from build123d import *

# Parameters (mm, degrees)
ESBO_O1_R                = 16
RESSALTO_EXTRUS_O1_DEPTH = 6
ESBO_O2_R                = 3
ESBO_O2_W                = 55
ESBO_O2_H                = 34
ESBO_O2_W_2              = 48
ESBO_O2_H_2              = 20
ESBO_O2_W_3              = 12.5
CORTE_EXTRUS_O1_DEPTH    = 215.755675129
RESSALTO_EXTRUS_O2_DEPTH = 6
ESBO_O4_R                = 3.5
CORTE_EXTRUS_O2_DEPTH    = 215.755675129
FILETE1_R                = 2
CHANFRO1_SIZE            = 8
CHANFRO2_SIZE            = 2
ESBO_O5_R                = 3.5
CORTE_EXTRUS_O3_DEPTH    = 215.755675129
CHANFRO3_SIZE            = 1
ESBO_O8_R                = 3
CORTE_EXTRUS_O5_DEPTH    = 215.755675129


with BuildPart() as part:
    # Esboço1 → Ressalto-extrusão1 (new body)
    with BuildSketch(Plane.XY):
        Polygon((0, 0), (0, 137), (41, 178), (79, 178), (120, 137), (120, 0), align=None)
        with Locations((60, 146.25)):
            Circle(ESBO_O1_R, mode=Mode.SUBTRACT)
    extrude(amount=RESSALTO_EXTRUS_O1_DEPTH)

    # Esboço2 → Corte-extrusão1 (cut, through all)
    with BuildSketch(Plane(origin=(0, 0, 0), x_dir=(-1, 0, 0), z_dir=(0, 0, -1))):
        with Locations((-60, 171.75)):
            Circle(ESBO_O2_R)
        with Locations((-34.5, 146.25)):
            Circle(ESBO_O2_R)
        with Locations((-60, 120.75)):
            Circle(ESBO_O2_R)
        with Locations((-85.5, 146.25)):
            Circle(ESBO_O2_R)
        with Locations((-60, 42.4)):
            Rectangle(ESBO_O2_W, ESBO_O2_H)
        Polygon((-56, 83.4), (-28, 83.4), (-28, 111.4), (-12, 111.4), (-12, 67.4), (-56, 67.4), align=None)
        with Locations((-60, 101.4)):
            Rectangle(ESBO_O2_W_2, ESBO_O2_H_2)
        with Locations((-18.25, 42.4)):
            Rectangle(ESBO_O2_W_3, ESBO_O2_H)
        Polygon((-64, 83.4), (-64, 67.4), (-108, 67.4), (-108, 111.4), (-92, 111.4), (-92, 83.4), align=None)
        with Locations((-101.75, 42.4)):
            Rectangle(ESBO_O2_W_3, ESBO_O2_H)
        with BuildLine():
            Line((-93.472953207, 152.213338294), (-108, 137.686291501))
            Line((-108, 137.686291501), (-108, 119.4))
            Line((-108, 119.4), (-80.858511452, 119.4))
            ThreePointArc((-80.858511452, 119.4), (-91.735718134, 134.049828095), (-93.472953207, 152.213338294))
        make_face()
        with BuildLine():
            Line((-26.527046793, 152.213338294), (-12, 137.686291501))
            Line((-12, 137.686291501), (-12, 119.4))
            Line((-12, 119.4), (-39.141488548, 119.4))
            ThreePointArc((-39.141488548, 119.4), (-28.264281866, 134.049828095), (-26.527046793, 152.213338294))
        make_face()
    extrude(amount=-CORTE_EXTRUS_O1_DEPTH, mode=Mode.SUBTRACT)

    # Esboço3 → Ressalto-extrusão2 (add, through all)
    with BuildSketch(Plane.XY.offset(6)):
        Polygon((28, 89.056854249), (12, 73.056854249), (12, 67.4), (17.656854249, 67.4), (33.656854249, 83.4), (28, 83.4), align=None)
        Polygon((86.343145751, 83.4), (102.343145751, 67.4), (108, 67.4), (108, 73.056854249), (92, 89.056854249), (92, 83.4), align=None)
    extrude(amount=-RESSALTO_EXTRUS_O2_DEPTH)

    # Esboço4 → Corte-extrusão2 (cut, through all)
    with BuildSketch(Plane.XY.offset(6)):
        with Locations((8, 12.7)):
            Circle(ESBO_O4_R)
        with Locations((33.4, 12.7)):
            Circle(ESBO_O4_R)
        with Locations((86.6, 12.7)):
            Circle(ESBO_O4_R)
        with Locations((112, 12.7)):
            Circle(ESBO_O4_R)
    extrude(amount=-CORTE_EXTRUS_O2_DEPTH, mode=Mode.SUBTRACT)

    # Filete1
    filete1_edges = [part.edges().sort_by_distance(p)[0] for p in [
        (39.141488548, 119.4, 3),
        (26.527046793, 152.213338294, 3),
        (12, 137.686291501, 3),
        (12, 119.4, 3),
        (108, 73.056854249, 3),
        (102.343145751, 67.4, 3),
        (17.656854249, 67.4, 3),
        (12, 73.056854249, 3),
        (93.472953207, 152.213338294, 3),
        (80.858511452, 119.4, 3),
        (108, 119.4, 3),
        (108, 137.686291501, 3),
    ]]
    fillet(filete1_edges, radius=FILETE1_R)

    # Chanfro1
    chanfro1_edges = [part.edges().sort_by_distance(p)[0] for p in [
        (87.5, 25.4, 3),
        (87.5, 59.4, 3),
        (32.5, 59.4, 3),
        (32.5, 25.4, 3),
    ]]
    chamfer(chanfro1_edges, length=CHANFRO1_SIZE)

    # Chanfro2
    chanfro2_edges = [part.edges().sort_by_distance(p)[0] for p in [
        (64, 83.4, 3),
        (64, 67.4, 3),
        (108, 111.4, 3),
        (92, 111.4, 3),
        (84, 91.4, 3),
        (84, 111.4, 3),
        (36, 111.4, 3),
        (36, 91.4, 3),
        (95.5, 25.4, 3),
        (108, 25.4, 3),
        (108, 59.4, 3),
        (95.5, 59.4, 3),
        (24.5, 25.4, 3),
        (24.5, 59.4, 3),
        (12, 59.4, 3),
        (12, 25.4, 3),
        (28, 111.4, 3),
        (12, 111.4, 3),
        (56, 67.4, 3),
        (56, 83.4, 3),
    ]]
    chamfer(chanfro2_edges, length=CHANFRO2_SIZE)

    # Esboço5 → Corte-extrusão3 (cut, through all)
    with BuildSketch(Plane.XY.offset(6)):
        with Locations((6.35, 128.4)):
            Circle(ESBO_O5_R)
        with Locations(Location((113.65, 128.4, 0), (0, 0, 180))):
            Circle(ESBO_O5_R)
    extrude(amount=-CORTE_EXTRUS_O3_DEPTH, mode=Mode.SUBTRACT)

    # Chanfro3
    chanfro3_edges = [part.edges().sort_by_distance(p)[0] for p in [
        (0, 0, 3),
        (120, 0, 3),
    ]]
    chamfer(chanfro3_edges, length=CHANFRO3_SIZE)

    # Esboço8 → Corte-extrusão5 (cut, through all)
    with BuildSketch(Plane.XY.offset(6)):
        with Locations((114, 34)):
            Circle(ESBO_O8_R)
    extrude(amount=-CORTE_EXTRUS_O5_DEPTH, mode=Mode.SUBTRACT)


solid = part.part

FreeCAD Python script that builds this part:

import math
import FreeCAD as App
import Part
import Sketcher
Q = App.Units.Quantity


def edges_at(feature, points):
    """Names of the edges that pass closest to the given points."""
    edges = feature.Shape.Edges
    near = lambda p: min(range(len(edges)), key=lambda i: edges[i].distToShape(Part.Vertex(*p))[0])
    return sorted({f"Edge{near(p) + 1}" for p in points})


def add_polygon(sketch, points):
    """Adds a closed chain of lines whose ends are joined by coincident constraints."""
    first, n = sketch.GeometryCount, len(points)
    for a, b in zip(points, points[1:] + points[:1]):
        sketch.addGeometry(Part.LineSegment(App.Vector(*a, 0), App.Vector(*b, 0)), False)
    for i in range(n):
        sketch.addConstraint(Sketcher.Constraint("Coincident", first + i, 2, first + (i + 1) % n, 1))

doc = App.newDocument("Part")
body = doc.addObject("PartDesign::Body", "Body")

sketch1 = body.newObject("Sketcher::SketchObject", "Sketch")
sketch1.AttachmentSupport = (doc.getObject("XY_Plane"), [""])
sketch1.MapMode = "FlatFace"
add_polygon(sketch1, [(0, 137), (0, 0), (120, 0), (120, 137), (79, 178), (41, 178)])
sketch1.addGeometry(Part.Circle(App.Vector(60, 146.25, 0), App.Vector(0, 0, 1), 16), False)
sketch1.addConstraint(Sketcher.Constraint("Vertical", 0))
sketch1.addConstraint(Sketcher.Constraint("Horizontal", 1))
sketch1.addConstraint(Sketcher.Constraint("Vertical", 2))
sketch1.addConstraint(Sketcher.Constraint("Horizontal", 4))
sketch1.addConstraint(Sketcher.Constraint("Coincident", 0, 2, -1, 1))
sketch1.addConstraint(Sketcher.Constraint("Perpendicular", 3, 5))
sketch1.addConstraint(Sketcher.Constraint("Horizontal", 2, 2, 5, 2))
sketch1.addConstraint(Sketcher.Constraint("Equal", 3, 5))
sketch1.addConstraint(Sketcher.Constraint("Diameter", 6, Q("32 mm")))
sketch1.addConstraint(Sketcher.Constraint("DistanceX", 1, 1, 1, 2, Q("120 mm")))
sketch1.addConstraint(Sketcher.Constraint("DistanceX", 4, 2, 4, 1, Q("38 mm")))
sketch1.addConstraint(Sketcher.Constraint("DistanceY", 0, 2, 0, 1, Q("137 mm")))
sketch1.addConstraint(Sketcher.Constraint("DistanceX", -1, 1, 6, 3, Q("60 mm")))
sketch1.addConstraint(Sketcher.Constraint("DistanceY", -1, 1, 6, 3, Q("146.25 mm")))
pad1 = body.newObject("PartDesign::Pad", "Pad")
pad1.Profile = sketch1
pad1.Length = 6

sketch2 = body.newObject("Sketcher::SketchObject", "Sketch001")
sketch2.AttachmentSupport = (doc.getObject("XY_Plane"), [""])
sketch2.MapMode = "FlatFace"
sketch2.addGeometry(Part.Circle(App.Vector(60, 171.75, 0), App.Vector(0, 0, 1), 3), False)
sketch2.addGeometry(Part.Circle(App.Vector(34.5, 146.25, 0), App.Vector(0, 0, 1), 3), False)
sketch2.addGeometry(Part.Circle(App.Vector(60, 120.75, 0), App.Vector(0, 0, 1), 3), False)
sketch2.addGeometry(Part.Circle(App.Vector(85.5, 146.25, 0), App.Vector(0, 0, 1), 3), False)
add_polygon(sketch2, [(87.5, 59.4), (87.5, 25.4), (32.5, 25.4), (32.5, 59.4)])
add_polygon(sketch2, [(28, 83.4), (56, 83.4), (56, 67.4), (12, 67.4), (12, 111.4), (28, 111.4)])
add_polygon(sketch2, [(84, 111.4), (84, 91.4), (36, 91.4), (36, 111.4)])
add_polygon(sketch2, [(24.5, 59.4), (24.5, 25.4), (12, 25.4), (12, 59.4)])
add_polygon(sketch2, [(64, 67.4), (64, 83.4), (92, 83.4), (92, 111.4), (108, 111.4), (108, 67.4)])
add_polygon(sketch2, [(108, 59.4), (108, 25.4), (95.5, 25.4), (95.5, 59.4)])
sketch2.addGeometry(Part.LineSegment(App.Vector(93.472953, 152.213338, 0), App.Vector(108, 137.686292, 0)), False)
sketch2.addGeometry(Part.LineSegment(App.Vector(108, 137.686292, 0), App.Vector(108, 119.4, 0)), False)
sketch2.addGeometry(Part.LineSegment(App.Vector(108, 119.4, 0), App.Vector(80.858511, 119.4, 0)), False)
sketch2.addGeometry(Part.ArcOfCircle(Part.Circle(App.Vector(60, 146.25, 0), App.Vector(0, 0, 1), 34), math.radians(-52.158034), math.radians(10.101489)), False)
sketch2.addGeometry(Part.LineSegment(App.Vector(12, 137.686292, 0), App.Vector(26.527047, 152.213338, 0)), False)
sketch2.addGeometry(Part.ArcOfCircle(Part.Circle(App.Vector(60, 146.25, 0), App.Vector(0, 0, 1), 34), math.radians(169.898511), math.radians(232.158034)), False)
sketch2.addGeometry(Part.LineSegment(App.Vector(39.141489, 119.4, 0), App.Vector(12, 119.4, 0)), False)
sketch2.addGeometry(Part.LineSegment(App.Vector(12, 119.4, 0), App.Vector(12, 137.686292, 0)), False)
sketch2.addConstraint(Sketcher.Constraint("Coincident", 32, 2, 33, 1))
sketch2.addConstraint(Sketcher.Constraint("Coincident", 33, 2, 34, 1))
sketch2.addConstraint(Sketcher.Constraint("Coincident", 34, 2, 35, 1))
sketch2.addConstraint(Sketcher.Constraint("Coincident", 35, 2, 32, 1))
sketch2.addConstraint(Sketcher.Constraint("Coincident", 36, 2, 37, 1))
sketch2.addConstraint(Sketcher.Constraint("Coincident", 37, 2, 38, 1))
sketch2.addConstraint(Sketcher.Constraint("Coincident", 38, 2, 39, 1))
sketch2.addConstraint(Sketcher.Constraint("Coincident", 39, 2, 36, 1))
sketch2.addConstraint(Sketcher.Constraint("Vertical", 4))
sketch2.addConstraint(Sketcher.Constraint("Horizontal", 5))
sketch2.addConstraint(Sketcher.Constraint("Vertical", 6))
sketch2.addConstraint(Sketcher.Constraint("Horizontal", 7))
sketch2.addConstraint(Sketcher.Constraint("Horizontal", 8))
sketch2.addConstraint(Sketcher.Constraint("Vertical", 9))
sketch2.addConstraint(Sketcher.Constraint("Horizontal", 10))
sketch2.addConstraint(Sketcher.Constraint("Vertical", 11))
sketch2.addConstraint(Sketcher.Constraint("Horizontal", 12))
sketch2.addConstraint(Sketcher.Constraint("Vertical", 13))
sketch2.addConstraint(Sketcher.Constraint("Vertical", 14))
sketch2.addConstraint(Sketcher.Constraint("Horizontal", 15))
sketch2.addConstraint(Sketcher.Constraint("Vertical", 16))
sketch2.addConstraint(Sketcher.Constraint("Horizontal", 17))
sketch2.addConstraint(Sketcher.Constraint("Vertical", 18))
sketch2.addConstraint(Sketcher.Constraint("Horizontal", 19))
sketch2.addConstraint(Sketcher.Constraint("Vertical", 20))
sketch2.addConstraint(Sketcher.Constraint("Horizontal", 21))
sketch2.addConstraint(Sketcher.Constraint("Vertical", 22))
sketch2.addConstraint(Sketcher.Constraint("Horizontal", 23))
sketch2.addConstraint(Sketcher.Constraint("Vertical", 24))
sketch2.addConstraint(Sketcher.Constraint("Horizontal", 25))
sketch2.addConstraint(Sketcher.Constraint("Vertical", 26))
sketch2.addConstraint(Sketcher.Constraint("Horizontal", 27))
sketch2.addConstraint(Sketcher.Constraint("Vertical", 28))
sketch2.addConstraint(Sketcher.Constraint("Horizontal", 29))
sketch2.addConstraint(Sketcher.Constraint("Vertical", 30))
sketch2.addConstraint(Sketcher.Constraint("Horizontal", 31))
sketch2.addConstraint(Sketcher.Constraint("Vertical", 33))
sketch2.addConstraint(Sketcher.Constraint("Horizontal", 34))
sketch2.addConstraint(Sketcher.Constraint("Horizontal", 38))
sketch2.addConstraint(Sketcher.Constraint("Vertical", 39))
sketch2.addConstraint(Sketcher.Constraint("Coincident", 37, 3, 35, 3))
sketch2.addConstraint(Sketcher.Constraint("Equal", 0, 1))
sketch2.addConstraint(Sketcher.Constraint("Equal", 1, 2))
sketch2.addConstraint(Sketcher.Constraint("Equal", 2, 3))
sketch2.addConstraint(Sketcher.Constraint("Equal", 35, 37))
sketch2.addConstraint(Sketcher.Constraint("Perpendicular", 32, 36))
sketch2.addConstraint(Sketcher.Constraint("Horizontal", 1, 3, 3, 3))
sketch2.addConstraint(Sketcher.Constraint("Horizontal", 3, 3, 35, 3))
sketch2.addConstraint(Sketcher.Constraint("Horizontal", 12, 2, 16, 2))
sketch2.addConstraint(Sketcher.Constraint("Horizontal", 5, 2, 18, 2))
sketch2.addConstraint(Sketcher.Constraint("Horizontal", 7, 2, 20, 2))
sketch2.addConstraint(Sketcher.Constraint("Horizontal", 13, 2, 22, 2))
sketch2.addConstraint(Sketcher.Constraint("Horizontal", 17, 2, 24, 2))
sketch2.addConstraint(Sketcher.Constraint("Horizontal", 10, 2, 26, 2))
sketch2.addConstraint(Sketcher.Constraint("Horizontal", 19, 2, 28, 2))
sketch2.addConstraint(Sketcher.Constraint("Horizontal", 21, 2, 30, 2))
sketch2.addConstraint(Sketcher.Constraint("Horizontal", 35, 2, 36, 2))
sketch2.addConstraint(Sketcher.Constraint("Horizontal", 34, 2, 37, 2))
sketch2.addConstraint(Sketcher.Constraint("Horizontal", 32, 2, 39, 2))
sketch2.addConstraint(Sketcher.Constraint("Vertical", 0, 3, 2, 3))
sketch2.addConstraint(Sketcher.Constraint("Vertical", 2, 3, 35, 3))
sketch2.addConstraint(Sketcher.Constraint("Vertical", 11, 2, 19, 2))
sketch2.addConstraint(Sketcher.Constraint("Vertical", 26, 2, 28, 2))
sketch2.addConstraint(Sketcher.Constraint("Vertical", 31, 2, 32, 2))
sketch2.addConstraint(Sketcher.Constraint("Vertical", 20, 2, 38, 2))
sketch2.addConstraint(Sketcher.Constraint("Equal", 8, 23))
sketch2.addConstraint(Sketcher.Constraint("Equal", 12, 25))
sketch2.addConstraint(Sketcher.Constraint("Equal", 21, 29))
sketch2.addConstraint(Sketcher.Constraint("Equal", 34, 38))
sketch2.addConstraint(Sketcher.Constraint("Equal", 25, 9))
sketch2.addConstraint(Sketcher.Constraint("Equal", 27, 11))
sketch2.addConstraint(Sketcher.Constraint("Diameter", 0, Q("6 mm")))
sketch2.addConstraint(Sketcher.Constraint("Radius", 35, Q("34 mm")))
sketch2.addConstraint(Sketcher.Constraint("DistanceX", 5, 2, 5, 1, Q("55 mm")))
sketch2.addConstraint(Sketcher.Constraint("DistanceX", 8, 1, 8, 2, Q("28 mm")))
sketch2.addConstraint(Sketcher.Constraint("DistanceX", 10, 2, 10, 1, Q("44 mm")))
sketch2.addConstraint(Sketcher.Constraint("DistanceX", 15, 2, 15, 1, Q("48 mm")))
sketch2.addConstraint(Sketcher.Constraint("DistanceY", 4, 2, 4, 1, Q("34 mm")))
sketch2.addConstraint(Sketcher.Constraint("DistanceY", 14, 2, 14, 1, Q("20 mm")))
sketch2.addConstraint(Sketcher.Constraint("DistanceX", 19, 2, 19, 1, Q("12.5 mm")))
sketch2.addConstraint(Sketcher.Constraint("DistanceX", -1, 1, 0, 3, Q("60 mm")))
sketch2.addConstraint(Sketcher.Constraint("DistanceX", -1, 1, 8, 2, Q("56 mm")))
sketch2.addConstraint(Sketcher.Constraint("DistanceX", -1, 1, 14, 2, Q("84 mm")))
sketch2.addConstraint(Sketcher.Constraint("DistanceY", 2, 3, 0, 3, Q("51 mm")))
sketch2.addConstraint(Sketcher.Constraint("DistanceX", 1, 3, 3, 3, Q("51 mm")))
sketch2.addConstraint(Sketcher.Constraint("DistanceX", 3, 3, 4, 2, Q("2 mm")))
sketch2.addConstraint(Sketcher.Constraint("DistanceY", 6, 2, 8, 2, Q("24 mm")))
sketch2.addConstraint(Sketcher.Constraint("DistanceX", 18, 2, 5, 2, Q("8 mm")))
sketch2.addConstraint(Sketcher.Constraint("DistanceY", 25, 2, 33, 2, Q("8 mm")))
sketch2.addConstraint(Sketcher.Constraint("DistanceY", -1, 1, 4, 2, Q("25.4 mm")))
sketch2.addConstraint(Sketcher.Constraint("DistanceY", 1, 3, 0, 3, Q("25.5 mm")))
sketch2.addConstraint(Sketcher.Constraint("DistanceY", -1, 1, 0, 3, Q("171.75 mm")))
sketch2.addConstraint(Sketcher.Constraint("DistanceY", 33, 2, 33, 1, Q("18.286292 mm")))
pocket1 = body.newObject("PartDesign::Pocket", "Pocket")
pocket1.Profile = sketch2
pocket1.Type = "ThroughAll"
pocket1.Reversed = True

sketch3 = body.newObject("Sketcher::SketchObject", "Sketch002")
sketch3.AttachmentSupport = (doc.getObject("XY_Plane"), [""])
sketch3.MapMode = "FlatFace"
sketch3.AttachmentOffset = App.Placement(App.Vector(0, 0, 6), App.Rotation())
add_polygon(sketch3, [(28, 89.056854), (12, 73.056854), (12, 67.4), (17.656854, 67.4), (33.656854, 83.4), (28, 83.4)])
add_polygon(sketch3, [(86.343146, 83.4), (102.343146, 67.4), (108, 67.4), (108, 73.056854), (92, 89.056854), (92, 83.4)])
sketch3.addConstraint(Sketcher.Constraint("Vertical", 1))
sketch3.addConstraint(Sketcher.Constraint("Horizontal", 2))
sketch3.addConstraint(Sketcher.Constraint("Horizontal", 4))
sketch3.addConstraint(Sketcher.Constraint("Vertical", 5))
sketch3.addConstraint(Sketcher.Constraint("Horizontal", 7))
sketch3.addConstraint(Sketcher.Constraint("Vertical", 8))
sketch3.addConstraint(Sketcher.Constraint("Vertical", 10))
sketch3.addConstraint(Sketcher.Constraint("Horizontal", 11))
sketch3.addConstraint(Sketcher.Constraint("Parallel", 0, 3))
sketch3.addConstraint(Sketcher.Constraint("Perpendicular", 3, 6))
sketch3.addConstraint(Sketcher.Constraint("Parallel", 6, 9))
sketch3.addConstraint(Sketcher.Constraint("Horizontal", 2, 2, 6, 2))
sketch3.addConstraint(Sketcher.Constraint("Horizontal", 0, 2, 8, 2))
sketch3.addConstraint(Sketcher.Constraint("Horizontal", 5, 2, 9, 2))
sketch3.addConstraint(Sketcher.Constraint("Horizontal", 4, 2, 10, 2))
sketch3.addConstraint(Sketcher.Constraint("Equal", 2, 4))
sketch3.addConstraint(Sketcher.Constraint("Equal", 4, 7))
sketch3.addConstraint(Sketcher.Constraint("Equal", 11, 1))
sketch3.addConstraint(Sketcher.Constraint("Equal", 3, 6))
sketch3.addConstraint(Sketcher.Constraint("DistanceX", -1, 1, 0, 2, Q("12 mm")))
sketch3.addConstraint(Sketcher.Constraint("DistanceX", -1, 1, 4, 2, Q("28 mm")))
sketch3.addConstraint(Sketcher.Constraint("DistanceX", -1, 1, 7, 2, Q("108 mm")))
sketch3.addConstraint(Sketcher.Constraint("DistanceY", -1, 1, 1, 2, Q("67.4 mm")))
sketch3.addConstraint(Sketcher.Constraint("DistanceX", 2, 1, 2, 2, Q("5.656854 mm")))
pad2 = body.newObject("PartDesign::Pad", "Pad001")
pad2.Profile = sketch3
pad2.Type = "UpToLast"
pad2.Reversed = True

sketch4 = body.newObject("Sketcher::SketchObject", "Sketch003")
sketch4.AttachmentSupport = (doc.getObject("XY_Plane"), [""])
sketch4.MapMode = "FlatFace"
sketch4.AttachmentOffset = App.Placement(App.Vector(0, 0, 6), App.Rotation())
sketch4.addGeometry(Part.Circle(App.Vector(8, 12.7, 0), App.Vector(0, 0, 1), 3.5), False)
sketch4.addGeometry(Part.Circle(App.Vector(33.4, 12.7, 0), App.Vector(0, 0, 1), 3.5), False)
sketch4.addGeometry(Part.Circle(App.Vector(86.6, 12.7, 0), App.Vector(0, 0, 1), 3.5), False)
sketch4.addGeometry(Part.Circle(App.Vector(112, 12.7, 0), App.Vector(0, 0, 1), 3.5), False)
sketch4.addConstraint(Sketcher.Constraint("Equal", 0, 1))
sketch4.addConstraint(Sketcher.Constraint("Equal", 1, 2))
sketch4.addConstraint(Sketcher.Constraint("Equal", 2, 3))
sketch4.addConstraint(Sketcher.Constraint("Horizontal", 0, 3, 1, 3))
sketch4.addConstraint(Sketcher.Constraint("Horizontal", 1, 3, 2, 3))
sketch4.addConstraint(Sketcher.Constraint("Horizontal", 2, 3, 3, 3))
sketch4.addConstraint(Sketcher.Constraint("Diameter", 0, Q("7 mm")))
sketch4.addConstraint(Sketcher.Constraint("DistanceX", -1, 1, 0, 3, Q("8 mm")))
sketch4.addConstraint(Sketcher.Constraint("DistanceX", -1, 1, 3, 3, Q("112 mm")))
sketch4.addConstraint(Sketcher.Constraint("DistanceY", -1, 1, 0, 3, Q("12.7 mm")))
sketch4.addConstraint(Sketcher.Constraint("DistanceX", -1, 1, 1, 3, Q("33.4 mm")))
sketch4.addConstraint(Sketcher.Constraint("DistanceX", -1, 1, 2, 3, Q("86.6 mm")))
pocket2 = body.newObject("PartDesign::Pocket", "Pocket001")
pocket2.Profile = sketch4
pocket2.Type = "ThroughAll"
doc.recompute()

fillet = body.newObject("PartDesign::Fillet", "Fillet")
fillet.Base = (pocket2, edges_at(pocket2, [
    (39.141, 119.4, 3),
    (26.527, 152.213, 3),
    (12, 137.686, 3),
    (12, 119.4, 3),
    (108, 73.057, 3),
    (102.343, 67.4, 3),
    (17.657, 67.4, 3),
    (12, 73.057, 3),
    (93.473, 152.213, 3),
    (80.859, 119.4, 3),
    (108, 119.4, 3),
    (108, 137.686, 3),
]))
fillet.Radius = 2
doc.recompute()

chamfer = body.newObject("PartDesign::Chamfer", "Chamfer")
chamfer.Base = (fillet, edges_at(fillet, [
    (87.5, 25.4, 3),
    (87.5, 59.4, 3),
    (32.5, 59.4, 3),
    (32.5, 25.4, 3),
]))
chamfer.Size = 8
doc.recompute()

chamfer2 = body.newObject("PartDesign::Chamfer", "Chamfer001")
chamfer2.Base = (chamfer, edges_at(chamfer, [
    (64, 83.4, 3),
    (64, 67.4, 3),
    (108, 111.4, 3),
    (92, 111.4, 3),
    (84, 91.4, 3),
    (84, 111.4, 3),
    (36, 111.4, 3),
    (36, 91.4, 3),
    (95.5, 25.4, 3),
    (108, 25.4, 3),
    (108, 59.4, 3),
    (95.5, 59.4, 3),
    (24.5, 25.4, 3),
    (24.5, 59.4, 3),
    (12, 59.4, 3),
    (12, 25.4, 3),
    (28, 111.4, 3),
    (12, 111.4, 3),
    (56, 67.4, 3),
    (56, 83.4, 3),
]))
chamfer2.Size = 2

sketch5 = body.newObject("Sketcher::SketchObject", "Sketch004")
sketch5.AttachmentSupport = (doc.getObject("XY_Plane"), [""])
sketch5.MapMode = "FlatFace"
sketch5.AttachmentOffset = App.Placement(App.Vector(0, 0, 6), App.Rotation())
sketch5.addGeometry(Part.Circle(App.Vector(6.35, 128.4, 0), App.Vector(0, 0, 1), 3.5), False)
sketch5.addGeometry(Part.Circle(App.Vector(113.65, 128.4, 0), App.Vector(0, 0, 1), 3.5), False)
sketch5.addConstraint(Sketcher.Constraint("Equal", 0, 1))
sketch5.addConstraint(Sketcher.Constraint("Horizontal", 0, 3, 1, 3))
sketch5.addConstraint(Sketcher.Constraint("Diameter", 0, Q("7 mm")))
sketch5.addConstraint(Sketcher.Constraint("DistanceY", -1, 1, 0, 3, Q("128.4 mm")))
sketch5.addConstraint(Sketcher.Constraint("DistanceX", 0, 3, 1, 3, Q("107.3 mm")))
sketch5.addConstraint(Sketcher.Constraint("DistanceX", -1, 1, 0, 3, Q("6.35 mm")))
pocket3 = body.newObject("PartDesign::Pocket", "Pocket002")
pocket3.Profile = sketch5
pocket3.Type = "ThroughAll"
doc.recompute()

chamfer3 = body.newObject("PartDesign::Chamfer", "Chamfer002")
chamfer3.Base = (pocket3, edges_at(pocket3, [(0, 0, 3), (120, 0, 3)]))
chamfer3.Size = 1

sketch6 = body.newObject("Sketcher::SketchObject", "Sketch005")
sketch6.AttachmentSupport = (doc.getObject("XY_Plane"), [""])
sketch6.MapMode = "FlatFace"
sketch6.AttachmentOffset = App.Placement(App.Vector(0, 0, 6), App.Rotation())
sketch6.addGeometry(Part.Circle(App.Vector(114, 34, 0), App.Vector(0, 0, 1), 3), False)
sketch6.addConstraint(Sketcher.Constraint("Diameter", 0, Q("6 mm")))
sketch6.addConstraint(Sketcher.Constraint("DistanceX", -1, 1, 0, 3, Q("114 mm")))
sketch6.addConstraint(Sketcher.Constraint("DistanceY", -1, 1, 0, 3, Q("34 mm")))
pocket4 = body.newObject("PartDesign::Pocket", "Pocket003")
pocket4.Profile = sketch6
pocket4.Type = "ThroughAll"

doc.recompute()
